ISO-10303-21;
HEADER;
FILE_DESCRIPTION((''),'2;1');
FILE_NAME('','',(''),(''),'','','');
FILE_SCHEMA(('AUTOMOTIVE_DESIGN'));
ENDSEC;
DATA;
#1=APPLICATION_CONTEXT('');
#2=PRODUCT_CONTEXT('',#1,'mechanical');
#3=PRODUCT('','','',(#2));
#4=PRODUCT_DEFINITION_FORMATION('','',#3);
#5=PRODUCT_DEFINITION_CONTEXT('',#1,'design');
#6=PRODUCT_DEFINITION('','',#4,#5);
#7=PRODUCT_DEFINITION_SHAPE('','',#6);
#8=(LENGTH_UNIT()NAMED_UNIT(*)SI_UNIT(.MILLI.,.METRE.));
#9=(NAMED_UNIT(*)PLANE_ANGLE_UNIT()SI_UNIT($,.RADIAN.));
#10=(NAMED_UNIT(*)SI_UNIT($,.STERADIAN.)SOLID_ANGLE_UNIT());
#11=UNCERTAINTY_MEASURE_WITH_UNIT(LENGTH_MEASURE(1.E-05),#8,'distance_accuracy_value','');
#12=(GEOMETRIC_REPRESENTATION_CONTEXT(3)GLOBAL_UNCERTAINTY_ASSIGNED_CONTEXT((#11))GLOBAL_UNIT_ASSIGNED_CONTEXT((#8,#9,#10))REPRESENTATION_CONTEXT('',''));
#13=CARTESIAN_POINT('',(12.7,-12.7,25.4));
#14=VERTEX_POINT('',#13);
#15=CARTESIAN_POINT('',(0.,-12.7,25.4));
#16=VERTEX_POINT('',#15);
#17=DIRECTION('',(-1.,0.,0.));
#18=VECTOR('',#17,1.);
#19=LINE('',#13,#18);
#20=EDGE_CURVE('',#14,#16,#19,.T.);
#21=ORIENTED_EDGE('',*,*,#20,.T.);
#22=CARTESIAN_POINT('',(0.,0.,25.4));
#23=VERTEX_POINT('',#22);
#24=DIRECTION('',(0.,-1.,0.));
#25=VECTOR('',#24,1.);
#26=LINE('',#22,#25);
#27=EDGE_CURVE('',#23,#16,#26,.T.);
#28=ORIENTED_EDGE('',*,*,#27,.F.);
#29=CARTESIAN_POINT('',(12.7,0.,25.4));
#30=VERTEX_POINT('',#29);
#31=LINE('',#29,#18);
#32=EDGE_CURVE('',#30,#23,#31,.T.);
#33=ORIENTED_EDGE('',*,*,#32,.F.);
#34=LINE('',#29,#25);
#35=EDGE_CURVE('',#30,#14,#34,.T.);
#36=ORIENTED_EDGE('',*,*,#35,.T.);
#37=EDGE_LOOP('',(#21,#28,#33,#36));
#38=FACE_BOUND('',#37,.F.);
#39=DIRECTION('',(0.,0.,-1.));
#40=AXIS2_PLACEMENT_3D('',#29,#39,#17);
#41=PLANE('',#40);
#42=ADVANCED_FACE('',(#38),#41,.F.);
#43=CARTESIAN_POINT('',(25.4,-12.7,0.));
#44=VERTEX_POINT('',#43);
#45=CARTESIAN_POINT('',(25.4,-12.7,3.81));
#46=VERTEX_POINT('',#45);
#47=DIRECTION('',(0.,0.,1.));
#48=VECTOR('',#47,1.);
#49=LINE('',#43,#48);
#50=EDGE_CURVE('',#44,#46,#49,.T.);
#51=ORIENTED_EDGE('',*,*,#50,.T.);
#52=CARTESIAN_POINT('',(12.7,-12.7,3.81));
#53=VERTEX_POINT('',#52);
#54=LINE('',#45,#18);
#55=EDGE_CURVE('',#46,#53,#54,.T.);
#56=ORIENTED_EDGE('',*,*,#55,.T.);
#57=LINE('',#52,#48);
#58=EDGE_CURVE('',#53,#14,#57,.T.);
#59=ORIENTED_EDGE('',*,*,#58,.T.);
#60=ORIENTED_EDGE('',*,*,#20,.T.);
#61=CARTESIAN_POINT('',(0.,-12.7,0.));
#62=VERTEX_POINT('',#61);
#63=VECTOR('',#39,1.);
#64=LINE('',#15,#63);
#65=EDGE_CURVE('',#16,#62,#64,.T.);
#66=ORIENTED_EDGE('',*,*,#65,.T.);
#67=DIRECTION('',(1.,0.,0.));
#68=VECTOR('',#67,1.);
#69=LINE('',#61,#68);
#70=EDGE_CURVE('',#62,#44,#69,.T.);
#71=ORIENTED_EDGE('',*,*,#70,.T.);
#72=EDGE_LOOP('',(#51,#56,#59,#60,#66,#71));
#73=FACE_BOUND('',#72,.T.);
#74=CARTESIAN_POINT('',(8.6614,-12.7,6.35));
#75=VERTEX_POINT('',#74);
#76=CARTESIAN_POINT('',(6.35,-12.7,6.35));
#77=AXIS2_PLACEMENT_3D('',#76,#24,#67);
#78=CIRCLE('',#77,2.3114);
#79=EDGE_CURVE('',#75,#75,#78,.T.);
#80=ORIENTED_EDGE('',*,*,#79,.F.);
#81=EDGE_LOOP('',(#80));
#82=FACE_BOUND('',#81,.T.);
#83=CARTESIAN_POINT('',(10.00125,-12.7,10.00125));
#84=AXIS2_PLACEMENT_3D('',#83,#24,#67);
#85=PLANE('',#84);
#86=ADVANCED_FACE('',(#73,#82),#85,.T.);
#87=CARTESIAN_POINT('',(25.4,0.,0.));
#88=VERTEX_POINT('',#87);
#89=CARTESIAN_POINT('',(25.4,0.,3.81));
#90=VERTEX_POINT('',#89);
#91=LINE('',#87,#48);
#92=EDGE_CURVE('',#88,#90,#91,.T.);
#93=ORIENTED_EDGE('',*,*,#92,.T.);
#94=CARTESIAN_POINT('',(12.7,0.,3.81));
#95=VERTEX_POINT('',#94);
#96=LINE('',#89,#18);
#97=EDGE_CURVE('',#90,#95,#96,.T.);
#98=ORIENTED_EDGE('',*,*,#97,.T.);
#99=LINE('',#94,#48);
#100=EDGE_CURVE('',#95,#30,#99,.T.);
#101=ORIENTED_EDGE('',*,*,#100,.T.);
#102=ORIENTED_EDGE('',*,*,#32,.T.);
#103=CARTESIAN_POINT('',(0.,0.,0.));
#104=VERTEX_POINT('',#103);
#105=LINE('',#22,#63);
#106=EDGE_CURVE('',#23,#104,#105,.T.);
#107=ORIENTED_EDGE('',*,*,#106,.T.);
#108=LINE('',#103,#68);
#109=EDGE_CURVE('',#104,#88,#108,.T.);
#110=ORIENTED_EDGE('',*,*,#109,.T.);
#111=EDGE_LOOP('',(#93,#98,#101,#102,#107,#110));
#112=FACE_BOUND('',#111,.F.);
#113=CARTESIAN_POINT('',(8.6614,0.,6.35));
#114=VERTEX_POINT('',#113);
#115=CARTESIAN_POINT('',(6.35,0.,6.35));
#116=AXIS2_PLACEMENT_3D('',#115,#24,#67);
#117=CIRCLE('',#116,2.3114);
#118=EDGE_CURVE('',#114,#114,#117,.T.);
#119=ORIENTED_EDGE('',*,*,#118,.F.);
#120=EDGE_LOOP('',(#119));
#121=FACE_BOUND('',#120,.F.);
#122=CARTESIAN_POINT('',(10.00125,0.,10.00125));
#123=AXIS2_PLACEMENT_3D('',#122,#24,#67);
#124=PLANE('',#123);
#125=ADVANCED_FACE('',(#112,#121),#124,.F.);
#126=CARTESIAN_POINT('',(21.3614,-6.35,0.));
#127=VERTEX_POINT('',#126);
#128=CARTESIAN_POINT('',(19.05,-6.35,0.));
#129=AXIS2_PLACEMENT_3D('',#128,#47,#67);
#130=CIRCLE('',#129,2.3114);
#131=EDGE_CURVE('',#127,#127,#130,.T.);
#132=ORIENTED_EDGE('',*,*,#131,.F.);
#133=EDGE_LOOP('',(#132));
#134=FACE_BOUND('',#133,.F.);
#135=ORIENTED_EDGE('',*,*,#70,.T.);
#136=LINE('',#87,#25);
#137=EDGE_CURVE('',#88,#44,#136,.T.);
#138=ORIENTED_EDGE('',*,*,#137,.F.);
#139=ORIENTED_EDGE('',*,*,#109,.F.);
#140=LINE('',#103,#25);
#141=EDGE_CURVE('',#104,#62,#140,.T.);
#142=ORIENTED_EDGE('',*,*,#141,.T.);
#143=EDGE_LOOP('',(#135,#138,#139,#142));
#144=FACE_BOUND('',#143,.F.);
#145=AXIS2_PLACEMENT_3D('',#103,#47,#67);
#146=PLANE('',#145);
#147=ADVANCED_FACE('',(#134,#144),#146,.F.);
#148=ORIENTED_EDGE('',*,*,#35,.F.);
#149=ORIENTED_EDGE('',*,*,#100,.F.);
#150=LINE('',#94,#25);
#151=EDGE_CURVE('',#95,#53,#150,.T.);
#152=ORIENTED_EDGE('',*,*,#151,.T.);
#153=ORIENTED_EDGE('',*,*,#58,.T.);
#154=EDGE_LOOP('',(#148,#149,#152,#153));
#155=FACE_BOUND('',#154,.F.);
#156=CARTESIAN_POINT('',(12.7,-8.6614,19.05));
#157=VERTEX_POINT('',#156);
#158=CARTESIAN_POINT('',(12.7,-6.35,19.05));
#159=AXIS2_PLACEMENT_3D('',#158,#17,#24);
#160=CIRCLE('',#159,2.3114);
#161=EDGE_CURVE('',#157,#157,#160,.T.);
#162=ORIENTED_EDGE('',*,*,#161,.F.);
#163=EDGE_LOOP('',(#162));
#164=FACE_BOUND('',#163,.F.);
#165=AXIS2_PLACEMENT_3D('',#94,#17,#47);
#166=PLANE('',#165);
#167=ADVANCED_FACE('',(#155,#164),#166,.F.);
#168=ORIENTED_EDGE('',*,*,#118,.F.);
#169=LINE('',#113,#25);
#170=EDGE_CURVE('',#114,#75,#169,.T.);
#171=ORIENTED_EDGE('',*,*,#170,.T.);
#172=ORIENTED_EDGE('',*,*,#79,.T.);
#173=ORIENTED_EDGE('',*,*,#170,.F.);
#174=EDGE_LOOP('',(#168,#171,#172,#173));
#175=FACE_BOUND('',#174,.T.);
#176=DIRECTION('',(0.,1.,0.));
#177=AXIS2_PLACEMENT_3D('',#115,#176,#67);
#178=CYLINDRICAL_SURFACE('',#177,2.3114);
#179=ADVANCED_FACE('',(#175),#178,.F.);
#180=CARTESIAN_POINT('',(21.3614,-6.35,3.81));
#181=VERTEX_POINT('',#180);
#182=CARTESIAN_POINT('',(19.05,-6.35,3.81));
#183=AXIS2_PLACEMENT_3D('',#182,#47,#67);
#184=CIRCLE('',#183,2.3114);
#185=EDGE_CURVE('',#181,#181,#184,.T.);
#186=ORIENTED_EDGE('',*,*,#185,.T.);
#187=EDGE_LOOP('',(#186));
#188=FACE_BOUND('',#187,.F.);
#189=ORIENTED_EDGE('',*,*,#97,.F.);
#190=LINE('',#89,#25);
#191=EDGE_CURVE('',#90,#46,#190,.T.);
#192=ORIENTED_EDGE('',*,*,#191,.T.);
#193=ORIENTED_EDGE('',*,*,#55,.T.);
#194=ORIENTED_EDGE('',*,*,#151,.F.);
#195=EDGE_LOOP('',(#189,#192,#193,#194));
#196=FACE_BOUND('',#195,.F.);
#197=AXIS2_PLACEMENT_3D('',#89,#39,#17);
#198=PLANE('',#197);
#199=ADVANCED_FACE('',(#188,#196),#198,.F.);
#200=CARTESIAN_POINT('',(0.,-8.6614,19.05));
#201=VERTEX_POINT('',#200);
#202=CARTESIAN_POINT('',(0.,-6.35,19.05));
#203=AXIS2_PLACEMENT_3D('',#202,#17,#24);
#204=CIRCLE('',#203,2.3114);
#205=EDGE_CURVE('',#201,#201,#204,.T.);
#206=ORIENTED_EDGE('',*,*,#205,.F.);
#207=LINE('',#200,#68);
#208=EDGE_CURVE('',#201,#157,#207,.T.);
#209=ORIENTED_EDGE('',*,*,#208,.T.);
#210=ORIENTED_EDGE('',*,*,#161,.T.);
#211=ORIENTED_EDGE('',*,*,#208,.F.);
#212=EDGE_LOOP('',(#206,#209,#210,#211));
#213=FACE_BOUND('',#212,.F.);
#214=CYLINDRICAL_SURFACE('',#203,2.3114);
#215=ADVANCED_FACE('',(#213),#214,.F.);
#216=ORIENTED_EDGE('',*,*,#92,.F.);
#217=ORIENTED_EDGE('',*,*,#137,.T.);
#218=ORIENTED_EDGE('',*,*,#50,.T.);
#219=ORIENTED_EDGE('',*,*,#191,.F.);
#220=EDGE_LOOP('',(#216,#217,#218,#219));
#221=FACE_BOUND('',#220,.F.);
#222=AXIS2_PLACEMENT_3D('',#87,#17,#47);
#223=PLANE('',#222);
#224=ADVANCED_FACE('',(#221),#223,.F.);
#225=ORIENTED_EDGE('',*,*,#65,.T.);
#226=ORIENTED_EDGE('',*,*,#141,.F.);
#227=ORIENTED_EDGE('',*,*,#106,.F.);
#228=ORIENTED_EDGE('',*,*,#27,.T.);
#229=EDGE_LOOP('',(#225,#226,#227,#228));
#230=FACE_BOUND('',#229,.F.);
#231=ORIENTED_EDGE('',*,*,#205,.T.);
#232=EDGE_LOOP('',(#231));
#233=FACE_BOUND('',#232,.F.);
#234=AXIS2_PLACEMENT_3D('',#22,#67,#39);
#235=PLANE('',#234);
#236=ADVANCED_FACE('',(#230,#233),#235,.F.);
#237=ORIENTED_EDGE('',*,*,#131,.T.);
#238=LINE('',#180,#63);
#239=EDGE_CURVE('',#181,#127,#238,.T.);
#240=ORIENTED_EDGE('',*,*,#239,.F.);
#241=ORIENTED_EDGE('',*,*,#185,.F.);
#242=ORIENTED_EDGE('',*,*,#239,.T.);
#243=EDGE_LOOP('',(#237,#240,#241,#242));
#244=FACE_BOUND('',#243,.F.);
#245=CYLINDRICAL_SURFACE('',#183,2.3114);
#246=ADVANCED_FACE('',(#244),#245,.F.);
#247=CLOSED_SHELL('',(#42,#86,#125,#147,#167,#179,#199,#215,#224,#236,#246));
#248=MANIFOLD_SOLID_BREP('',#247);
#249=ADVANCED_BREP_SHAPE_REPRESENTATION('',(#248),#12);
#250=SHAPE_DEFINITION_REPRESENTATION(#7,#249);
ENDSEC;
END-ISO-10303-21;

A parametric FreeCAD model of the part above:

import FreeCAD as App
import Part
import Sketcher

V = App.Vector
Q = App.Units.Quantity

doc = App.newDocument("Part")
body = doc.addObject("PartDesign::Body", "Body")

sketch1 = doc.addObject("Sketcher::SketchObject", "Sketch")
body.addObject(sketch1)
sketch1.AttachmentSupport = (doc.XZ_Plane, [""])
sketch1.MapMode = "FlatFace"
sketch1.addGeometry([
    Part.LineSegment(V(0, 25.4, 0), V(0, 0, 0)),
    Part.LineSegment(V(0, 0, 0), V(25.4, 0, 0)),
    Part.LineSegment(V(25.4, 0, 0), V(25.4, 3.8, 0)),
    Part.LineSegment(V(25.4, 3.8, 0), V(12.7, 3.8, 0)),
    Part.LineSegment(V(12.7, 3.8, 0), V(12.7, 25.4, 0)),
    Part.LineSegment(V(12.7, 25.4, 0), V(0, 25.4, 0)),
    Part.Circle(V(6.3, 6.3, 0), V(0, 0, 1), 2.3),
], False)
sketch1.addConstraint([
    Sketcher.Constraint("Coincident", 0, 2, 1, 1),
    Sketcher.Constraint("Coincident", 1, 2, 2, 1),
    Sketcher.Constraint("Coincident", 2, 2, 3, 1),
    Sketcher.Constraint("Coincident", 3, 2, 4, 1),
    Sketcher.Constraint("Coincident", 4, 2, 5, 1),
    Sketcher.Constraint("Coincident", 5, 2, 0, 1),
    Sketcher.Constraint("Vertical", 0),
    Sketcher.Constraint("Horizontal", 1),
    Sketcher.Constraint("Vertical", 2),
    Sketcher.Constraint("Horizontal", 3),
    Sketcher.Constraint("Vertical", 4),
    Sketcher.Constraint("Horizontal", 5),
    Sketcher.Constraint("Coincident", 0, 2, -1, 1),
    Sketcher.Constraint("Equal", 3, 5),
    Sketcher.Constraint("Equal", 1, 0),
    Sketcher.Constraint("DistanceX", 1, 1, 1, 2, Q("1 in")),
    Sketcher.Constraint("Diameter", 6, Q("0.182 in")),
    Sketcher.Constraint("DistanceY", 2, 1, 2, 2, Q("0.15 in")),
    Sketcher.Constraint("DistanceY", 2, 2, 6, 3, Q("0.1 in")),
    Sketcher.Constraint("DistanceX", -1, 1, 6, 3, Q("0.25 in")),
])
pad1 = doc.addObject("PartDesign::Pad", "Pad")
body.addObject(pad1)
pad1.Profile = sketch1
pad1.Length = Q("0.5 in")

sketch2 = doc.addObject("Sketcher::SketchObject", "Sketch001")
body.addObject(sketch2)
sketch2.AttachmentSupport = (doc.YZ_Plane, [""])
sketch2.MapMode = "FlatFace"
sketch2.addGeometry(Part.Circle(V(-6.3, 19.1, 0), V(0, 0, 1), 2.3), False)
sketch2.addConstraint([
    Sketcher.Constraint("Diameter", 0, Q("0.182 in")),
    Sketcher.Constraint("DistanceX", 0, 3, -1, 1, Q("0.25 in")),
    Sketcher.Constraint("DistanceY", -1, 1, 0, 3, Q("0.75 in")),
])
pocket1 = doc.addObject("PartDesign::Pocket", "Pocket")
body.addObject(pocket1)
pocket1.Profile = sketch2
pocket1.Length = Q("1 in")
pocket1.Reversed = True

sketch3 = doc.addObject("Sketcher::SketchObject", "Sketch002")
body.addObject(sketch3)
sketch3.AttachmentSupport = (doc.XY_Plane, [""])
sketch3.MapMode = "FlatFace"
sketch3.AttachmentOffset = App.Placement(V(0, 0, 0.15 * 25.4), App.Rotation())
sketch3.addGeometry(Part.Circle(V(19.1, -6.3, 0), V(0, 0, 1), 2.3), False)
sketch3.addConstraint([
    Sketcher.Constraint("Diameter", 0, Q("0.182 in")),
    Sketcher.Constraint("DistanceX", -1, 1, 0, 3, Q("0.75 in")),
    Sketcher.Constraint("DistanceY", 0, 3, -1, 1, Q("0.25 in")),
])
pocket2 = doc.addObject("PartDesign::Pocket", "Pocket001")
body.addObject(pocket2)
pocket2.Profile = sketch3
pocket2.Length = Q("0.15 in")

doc.recompute()
